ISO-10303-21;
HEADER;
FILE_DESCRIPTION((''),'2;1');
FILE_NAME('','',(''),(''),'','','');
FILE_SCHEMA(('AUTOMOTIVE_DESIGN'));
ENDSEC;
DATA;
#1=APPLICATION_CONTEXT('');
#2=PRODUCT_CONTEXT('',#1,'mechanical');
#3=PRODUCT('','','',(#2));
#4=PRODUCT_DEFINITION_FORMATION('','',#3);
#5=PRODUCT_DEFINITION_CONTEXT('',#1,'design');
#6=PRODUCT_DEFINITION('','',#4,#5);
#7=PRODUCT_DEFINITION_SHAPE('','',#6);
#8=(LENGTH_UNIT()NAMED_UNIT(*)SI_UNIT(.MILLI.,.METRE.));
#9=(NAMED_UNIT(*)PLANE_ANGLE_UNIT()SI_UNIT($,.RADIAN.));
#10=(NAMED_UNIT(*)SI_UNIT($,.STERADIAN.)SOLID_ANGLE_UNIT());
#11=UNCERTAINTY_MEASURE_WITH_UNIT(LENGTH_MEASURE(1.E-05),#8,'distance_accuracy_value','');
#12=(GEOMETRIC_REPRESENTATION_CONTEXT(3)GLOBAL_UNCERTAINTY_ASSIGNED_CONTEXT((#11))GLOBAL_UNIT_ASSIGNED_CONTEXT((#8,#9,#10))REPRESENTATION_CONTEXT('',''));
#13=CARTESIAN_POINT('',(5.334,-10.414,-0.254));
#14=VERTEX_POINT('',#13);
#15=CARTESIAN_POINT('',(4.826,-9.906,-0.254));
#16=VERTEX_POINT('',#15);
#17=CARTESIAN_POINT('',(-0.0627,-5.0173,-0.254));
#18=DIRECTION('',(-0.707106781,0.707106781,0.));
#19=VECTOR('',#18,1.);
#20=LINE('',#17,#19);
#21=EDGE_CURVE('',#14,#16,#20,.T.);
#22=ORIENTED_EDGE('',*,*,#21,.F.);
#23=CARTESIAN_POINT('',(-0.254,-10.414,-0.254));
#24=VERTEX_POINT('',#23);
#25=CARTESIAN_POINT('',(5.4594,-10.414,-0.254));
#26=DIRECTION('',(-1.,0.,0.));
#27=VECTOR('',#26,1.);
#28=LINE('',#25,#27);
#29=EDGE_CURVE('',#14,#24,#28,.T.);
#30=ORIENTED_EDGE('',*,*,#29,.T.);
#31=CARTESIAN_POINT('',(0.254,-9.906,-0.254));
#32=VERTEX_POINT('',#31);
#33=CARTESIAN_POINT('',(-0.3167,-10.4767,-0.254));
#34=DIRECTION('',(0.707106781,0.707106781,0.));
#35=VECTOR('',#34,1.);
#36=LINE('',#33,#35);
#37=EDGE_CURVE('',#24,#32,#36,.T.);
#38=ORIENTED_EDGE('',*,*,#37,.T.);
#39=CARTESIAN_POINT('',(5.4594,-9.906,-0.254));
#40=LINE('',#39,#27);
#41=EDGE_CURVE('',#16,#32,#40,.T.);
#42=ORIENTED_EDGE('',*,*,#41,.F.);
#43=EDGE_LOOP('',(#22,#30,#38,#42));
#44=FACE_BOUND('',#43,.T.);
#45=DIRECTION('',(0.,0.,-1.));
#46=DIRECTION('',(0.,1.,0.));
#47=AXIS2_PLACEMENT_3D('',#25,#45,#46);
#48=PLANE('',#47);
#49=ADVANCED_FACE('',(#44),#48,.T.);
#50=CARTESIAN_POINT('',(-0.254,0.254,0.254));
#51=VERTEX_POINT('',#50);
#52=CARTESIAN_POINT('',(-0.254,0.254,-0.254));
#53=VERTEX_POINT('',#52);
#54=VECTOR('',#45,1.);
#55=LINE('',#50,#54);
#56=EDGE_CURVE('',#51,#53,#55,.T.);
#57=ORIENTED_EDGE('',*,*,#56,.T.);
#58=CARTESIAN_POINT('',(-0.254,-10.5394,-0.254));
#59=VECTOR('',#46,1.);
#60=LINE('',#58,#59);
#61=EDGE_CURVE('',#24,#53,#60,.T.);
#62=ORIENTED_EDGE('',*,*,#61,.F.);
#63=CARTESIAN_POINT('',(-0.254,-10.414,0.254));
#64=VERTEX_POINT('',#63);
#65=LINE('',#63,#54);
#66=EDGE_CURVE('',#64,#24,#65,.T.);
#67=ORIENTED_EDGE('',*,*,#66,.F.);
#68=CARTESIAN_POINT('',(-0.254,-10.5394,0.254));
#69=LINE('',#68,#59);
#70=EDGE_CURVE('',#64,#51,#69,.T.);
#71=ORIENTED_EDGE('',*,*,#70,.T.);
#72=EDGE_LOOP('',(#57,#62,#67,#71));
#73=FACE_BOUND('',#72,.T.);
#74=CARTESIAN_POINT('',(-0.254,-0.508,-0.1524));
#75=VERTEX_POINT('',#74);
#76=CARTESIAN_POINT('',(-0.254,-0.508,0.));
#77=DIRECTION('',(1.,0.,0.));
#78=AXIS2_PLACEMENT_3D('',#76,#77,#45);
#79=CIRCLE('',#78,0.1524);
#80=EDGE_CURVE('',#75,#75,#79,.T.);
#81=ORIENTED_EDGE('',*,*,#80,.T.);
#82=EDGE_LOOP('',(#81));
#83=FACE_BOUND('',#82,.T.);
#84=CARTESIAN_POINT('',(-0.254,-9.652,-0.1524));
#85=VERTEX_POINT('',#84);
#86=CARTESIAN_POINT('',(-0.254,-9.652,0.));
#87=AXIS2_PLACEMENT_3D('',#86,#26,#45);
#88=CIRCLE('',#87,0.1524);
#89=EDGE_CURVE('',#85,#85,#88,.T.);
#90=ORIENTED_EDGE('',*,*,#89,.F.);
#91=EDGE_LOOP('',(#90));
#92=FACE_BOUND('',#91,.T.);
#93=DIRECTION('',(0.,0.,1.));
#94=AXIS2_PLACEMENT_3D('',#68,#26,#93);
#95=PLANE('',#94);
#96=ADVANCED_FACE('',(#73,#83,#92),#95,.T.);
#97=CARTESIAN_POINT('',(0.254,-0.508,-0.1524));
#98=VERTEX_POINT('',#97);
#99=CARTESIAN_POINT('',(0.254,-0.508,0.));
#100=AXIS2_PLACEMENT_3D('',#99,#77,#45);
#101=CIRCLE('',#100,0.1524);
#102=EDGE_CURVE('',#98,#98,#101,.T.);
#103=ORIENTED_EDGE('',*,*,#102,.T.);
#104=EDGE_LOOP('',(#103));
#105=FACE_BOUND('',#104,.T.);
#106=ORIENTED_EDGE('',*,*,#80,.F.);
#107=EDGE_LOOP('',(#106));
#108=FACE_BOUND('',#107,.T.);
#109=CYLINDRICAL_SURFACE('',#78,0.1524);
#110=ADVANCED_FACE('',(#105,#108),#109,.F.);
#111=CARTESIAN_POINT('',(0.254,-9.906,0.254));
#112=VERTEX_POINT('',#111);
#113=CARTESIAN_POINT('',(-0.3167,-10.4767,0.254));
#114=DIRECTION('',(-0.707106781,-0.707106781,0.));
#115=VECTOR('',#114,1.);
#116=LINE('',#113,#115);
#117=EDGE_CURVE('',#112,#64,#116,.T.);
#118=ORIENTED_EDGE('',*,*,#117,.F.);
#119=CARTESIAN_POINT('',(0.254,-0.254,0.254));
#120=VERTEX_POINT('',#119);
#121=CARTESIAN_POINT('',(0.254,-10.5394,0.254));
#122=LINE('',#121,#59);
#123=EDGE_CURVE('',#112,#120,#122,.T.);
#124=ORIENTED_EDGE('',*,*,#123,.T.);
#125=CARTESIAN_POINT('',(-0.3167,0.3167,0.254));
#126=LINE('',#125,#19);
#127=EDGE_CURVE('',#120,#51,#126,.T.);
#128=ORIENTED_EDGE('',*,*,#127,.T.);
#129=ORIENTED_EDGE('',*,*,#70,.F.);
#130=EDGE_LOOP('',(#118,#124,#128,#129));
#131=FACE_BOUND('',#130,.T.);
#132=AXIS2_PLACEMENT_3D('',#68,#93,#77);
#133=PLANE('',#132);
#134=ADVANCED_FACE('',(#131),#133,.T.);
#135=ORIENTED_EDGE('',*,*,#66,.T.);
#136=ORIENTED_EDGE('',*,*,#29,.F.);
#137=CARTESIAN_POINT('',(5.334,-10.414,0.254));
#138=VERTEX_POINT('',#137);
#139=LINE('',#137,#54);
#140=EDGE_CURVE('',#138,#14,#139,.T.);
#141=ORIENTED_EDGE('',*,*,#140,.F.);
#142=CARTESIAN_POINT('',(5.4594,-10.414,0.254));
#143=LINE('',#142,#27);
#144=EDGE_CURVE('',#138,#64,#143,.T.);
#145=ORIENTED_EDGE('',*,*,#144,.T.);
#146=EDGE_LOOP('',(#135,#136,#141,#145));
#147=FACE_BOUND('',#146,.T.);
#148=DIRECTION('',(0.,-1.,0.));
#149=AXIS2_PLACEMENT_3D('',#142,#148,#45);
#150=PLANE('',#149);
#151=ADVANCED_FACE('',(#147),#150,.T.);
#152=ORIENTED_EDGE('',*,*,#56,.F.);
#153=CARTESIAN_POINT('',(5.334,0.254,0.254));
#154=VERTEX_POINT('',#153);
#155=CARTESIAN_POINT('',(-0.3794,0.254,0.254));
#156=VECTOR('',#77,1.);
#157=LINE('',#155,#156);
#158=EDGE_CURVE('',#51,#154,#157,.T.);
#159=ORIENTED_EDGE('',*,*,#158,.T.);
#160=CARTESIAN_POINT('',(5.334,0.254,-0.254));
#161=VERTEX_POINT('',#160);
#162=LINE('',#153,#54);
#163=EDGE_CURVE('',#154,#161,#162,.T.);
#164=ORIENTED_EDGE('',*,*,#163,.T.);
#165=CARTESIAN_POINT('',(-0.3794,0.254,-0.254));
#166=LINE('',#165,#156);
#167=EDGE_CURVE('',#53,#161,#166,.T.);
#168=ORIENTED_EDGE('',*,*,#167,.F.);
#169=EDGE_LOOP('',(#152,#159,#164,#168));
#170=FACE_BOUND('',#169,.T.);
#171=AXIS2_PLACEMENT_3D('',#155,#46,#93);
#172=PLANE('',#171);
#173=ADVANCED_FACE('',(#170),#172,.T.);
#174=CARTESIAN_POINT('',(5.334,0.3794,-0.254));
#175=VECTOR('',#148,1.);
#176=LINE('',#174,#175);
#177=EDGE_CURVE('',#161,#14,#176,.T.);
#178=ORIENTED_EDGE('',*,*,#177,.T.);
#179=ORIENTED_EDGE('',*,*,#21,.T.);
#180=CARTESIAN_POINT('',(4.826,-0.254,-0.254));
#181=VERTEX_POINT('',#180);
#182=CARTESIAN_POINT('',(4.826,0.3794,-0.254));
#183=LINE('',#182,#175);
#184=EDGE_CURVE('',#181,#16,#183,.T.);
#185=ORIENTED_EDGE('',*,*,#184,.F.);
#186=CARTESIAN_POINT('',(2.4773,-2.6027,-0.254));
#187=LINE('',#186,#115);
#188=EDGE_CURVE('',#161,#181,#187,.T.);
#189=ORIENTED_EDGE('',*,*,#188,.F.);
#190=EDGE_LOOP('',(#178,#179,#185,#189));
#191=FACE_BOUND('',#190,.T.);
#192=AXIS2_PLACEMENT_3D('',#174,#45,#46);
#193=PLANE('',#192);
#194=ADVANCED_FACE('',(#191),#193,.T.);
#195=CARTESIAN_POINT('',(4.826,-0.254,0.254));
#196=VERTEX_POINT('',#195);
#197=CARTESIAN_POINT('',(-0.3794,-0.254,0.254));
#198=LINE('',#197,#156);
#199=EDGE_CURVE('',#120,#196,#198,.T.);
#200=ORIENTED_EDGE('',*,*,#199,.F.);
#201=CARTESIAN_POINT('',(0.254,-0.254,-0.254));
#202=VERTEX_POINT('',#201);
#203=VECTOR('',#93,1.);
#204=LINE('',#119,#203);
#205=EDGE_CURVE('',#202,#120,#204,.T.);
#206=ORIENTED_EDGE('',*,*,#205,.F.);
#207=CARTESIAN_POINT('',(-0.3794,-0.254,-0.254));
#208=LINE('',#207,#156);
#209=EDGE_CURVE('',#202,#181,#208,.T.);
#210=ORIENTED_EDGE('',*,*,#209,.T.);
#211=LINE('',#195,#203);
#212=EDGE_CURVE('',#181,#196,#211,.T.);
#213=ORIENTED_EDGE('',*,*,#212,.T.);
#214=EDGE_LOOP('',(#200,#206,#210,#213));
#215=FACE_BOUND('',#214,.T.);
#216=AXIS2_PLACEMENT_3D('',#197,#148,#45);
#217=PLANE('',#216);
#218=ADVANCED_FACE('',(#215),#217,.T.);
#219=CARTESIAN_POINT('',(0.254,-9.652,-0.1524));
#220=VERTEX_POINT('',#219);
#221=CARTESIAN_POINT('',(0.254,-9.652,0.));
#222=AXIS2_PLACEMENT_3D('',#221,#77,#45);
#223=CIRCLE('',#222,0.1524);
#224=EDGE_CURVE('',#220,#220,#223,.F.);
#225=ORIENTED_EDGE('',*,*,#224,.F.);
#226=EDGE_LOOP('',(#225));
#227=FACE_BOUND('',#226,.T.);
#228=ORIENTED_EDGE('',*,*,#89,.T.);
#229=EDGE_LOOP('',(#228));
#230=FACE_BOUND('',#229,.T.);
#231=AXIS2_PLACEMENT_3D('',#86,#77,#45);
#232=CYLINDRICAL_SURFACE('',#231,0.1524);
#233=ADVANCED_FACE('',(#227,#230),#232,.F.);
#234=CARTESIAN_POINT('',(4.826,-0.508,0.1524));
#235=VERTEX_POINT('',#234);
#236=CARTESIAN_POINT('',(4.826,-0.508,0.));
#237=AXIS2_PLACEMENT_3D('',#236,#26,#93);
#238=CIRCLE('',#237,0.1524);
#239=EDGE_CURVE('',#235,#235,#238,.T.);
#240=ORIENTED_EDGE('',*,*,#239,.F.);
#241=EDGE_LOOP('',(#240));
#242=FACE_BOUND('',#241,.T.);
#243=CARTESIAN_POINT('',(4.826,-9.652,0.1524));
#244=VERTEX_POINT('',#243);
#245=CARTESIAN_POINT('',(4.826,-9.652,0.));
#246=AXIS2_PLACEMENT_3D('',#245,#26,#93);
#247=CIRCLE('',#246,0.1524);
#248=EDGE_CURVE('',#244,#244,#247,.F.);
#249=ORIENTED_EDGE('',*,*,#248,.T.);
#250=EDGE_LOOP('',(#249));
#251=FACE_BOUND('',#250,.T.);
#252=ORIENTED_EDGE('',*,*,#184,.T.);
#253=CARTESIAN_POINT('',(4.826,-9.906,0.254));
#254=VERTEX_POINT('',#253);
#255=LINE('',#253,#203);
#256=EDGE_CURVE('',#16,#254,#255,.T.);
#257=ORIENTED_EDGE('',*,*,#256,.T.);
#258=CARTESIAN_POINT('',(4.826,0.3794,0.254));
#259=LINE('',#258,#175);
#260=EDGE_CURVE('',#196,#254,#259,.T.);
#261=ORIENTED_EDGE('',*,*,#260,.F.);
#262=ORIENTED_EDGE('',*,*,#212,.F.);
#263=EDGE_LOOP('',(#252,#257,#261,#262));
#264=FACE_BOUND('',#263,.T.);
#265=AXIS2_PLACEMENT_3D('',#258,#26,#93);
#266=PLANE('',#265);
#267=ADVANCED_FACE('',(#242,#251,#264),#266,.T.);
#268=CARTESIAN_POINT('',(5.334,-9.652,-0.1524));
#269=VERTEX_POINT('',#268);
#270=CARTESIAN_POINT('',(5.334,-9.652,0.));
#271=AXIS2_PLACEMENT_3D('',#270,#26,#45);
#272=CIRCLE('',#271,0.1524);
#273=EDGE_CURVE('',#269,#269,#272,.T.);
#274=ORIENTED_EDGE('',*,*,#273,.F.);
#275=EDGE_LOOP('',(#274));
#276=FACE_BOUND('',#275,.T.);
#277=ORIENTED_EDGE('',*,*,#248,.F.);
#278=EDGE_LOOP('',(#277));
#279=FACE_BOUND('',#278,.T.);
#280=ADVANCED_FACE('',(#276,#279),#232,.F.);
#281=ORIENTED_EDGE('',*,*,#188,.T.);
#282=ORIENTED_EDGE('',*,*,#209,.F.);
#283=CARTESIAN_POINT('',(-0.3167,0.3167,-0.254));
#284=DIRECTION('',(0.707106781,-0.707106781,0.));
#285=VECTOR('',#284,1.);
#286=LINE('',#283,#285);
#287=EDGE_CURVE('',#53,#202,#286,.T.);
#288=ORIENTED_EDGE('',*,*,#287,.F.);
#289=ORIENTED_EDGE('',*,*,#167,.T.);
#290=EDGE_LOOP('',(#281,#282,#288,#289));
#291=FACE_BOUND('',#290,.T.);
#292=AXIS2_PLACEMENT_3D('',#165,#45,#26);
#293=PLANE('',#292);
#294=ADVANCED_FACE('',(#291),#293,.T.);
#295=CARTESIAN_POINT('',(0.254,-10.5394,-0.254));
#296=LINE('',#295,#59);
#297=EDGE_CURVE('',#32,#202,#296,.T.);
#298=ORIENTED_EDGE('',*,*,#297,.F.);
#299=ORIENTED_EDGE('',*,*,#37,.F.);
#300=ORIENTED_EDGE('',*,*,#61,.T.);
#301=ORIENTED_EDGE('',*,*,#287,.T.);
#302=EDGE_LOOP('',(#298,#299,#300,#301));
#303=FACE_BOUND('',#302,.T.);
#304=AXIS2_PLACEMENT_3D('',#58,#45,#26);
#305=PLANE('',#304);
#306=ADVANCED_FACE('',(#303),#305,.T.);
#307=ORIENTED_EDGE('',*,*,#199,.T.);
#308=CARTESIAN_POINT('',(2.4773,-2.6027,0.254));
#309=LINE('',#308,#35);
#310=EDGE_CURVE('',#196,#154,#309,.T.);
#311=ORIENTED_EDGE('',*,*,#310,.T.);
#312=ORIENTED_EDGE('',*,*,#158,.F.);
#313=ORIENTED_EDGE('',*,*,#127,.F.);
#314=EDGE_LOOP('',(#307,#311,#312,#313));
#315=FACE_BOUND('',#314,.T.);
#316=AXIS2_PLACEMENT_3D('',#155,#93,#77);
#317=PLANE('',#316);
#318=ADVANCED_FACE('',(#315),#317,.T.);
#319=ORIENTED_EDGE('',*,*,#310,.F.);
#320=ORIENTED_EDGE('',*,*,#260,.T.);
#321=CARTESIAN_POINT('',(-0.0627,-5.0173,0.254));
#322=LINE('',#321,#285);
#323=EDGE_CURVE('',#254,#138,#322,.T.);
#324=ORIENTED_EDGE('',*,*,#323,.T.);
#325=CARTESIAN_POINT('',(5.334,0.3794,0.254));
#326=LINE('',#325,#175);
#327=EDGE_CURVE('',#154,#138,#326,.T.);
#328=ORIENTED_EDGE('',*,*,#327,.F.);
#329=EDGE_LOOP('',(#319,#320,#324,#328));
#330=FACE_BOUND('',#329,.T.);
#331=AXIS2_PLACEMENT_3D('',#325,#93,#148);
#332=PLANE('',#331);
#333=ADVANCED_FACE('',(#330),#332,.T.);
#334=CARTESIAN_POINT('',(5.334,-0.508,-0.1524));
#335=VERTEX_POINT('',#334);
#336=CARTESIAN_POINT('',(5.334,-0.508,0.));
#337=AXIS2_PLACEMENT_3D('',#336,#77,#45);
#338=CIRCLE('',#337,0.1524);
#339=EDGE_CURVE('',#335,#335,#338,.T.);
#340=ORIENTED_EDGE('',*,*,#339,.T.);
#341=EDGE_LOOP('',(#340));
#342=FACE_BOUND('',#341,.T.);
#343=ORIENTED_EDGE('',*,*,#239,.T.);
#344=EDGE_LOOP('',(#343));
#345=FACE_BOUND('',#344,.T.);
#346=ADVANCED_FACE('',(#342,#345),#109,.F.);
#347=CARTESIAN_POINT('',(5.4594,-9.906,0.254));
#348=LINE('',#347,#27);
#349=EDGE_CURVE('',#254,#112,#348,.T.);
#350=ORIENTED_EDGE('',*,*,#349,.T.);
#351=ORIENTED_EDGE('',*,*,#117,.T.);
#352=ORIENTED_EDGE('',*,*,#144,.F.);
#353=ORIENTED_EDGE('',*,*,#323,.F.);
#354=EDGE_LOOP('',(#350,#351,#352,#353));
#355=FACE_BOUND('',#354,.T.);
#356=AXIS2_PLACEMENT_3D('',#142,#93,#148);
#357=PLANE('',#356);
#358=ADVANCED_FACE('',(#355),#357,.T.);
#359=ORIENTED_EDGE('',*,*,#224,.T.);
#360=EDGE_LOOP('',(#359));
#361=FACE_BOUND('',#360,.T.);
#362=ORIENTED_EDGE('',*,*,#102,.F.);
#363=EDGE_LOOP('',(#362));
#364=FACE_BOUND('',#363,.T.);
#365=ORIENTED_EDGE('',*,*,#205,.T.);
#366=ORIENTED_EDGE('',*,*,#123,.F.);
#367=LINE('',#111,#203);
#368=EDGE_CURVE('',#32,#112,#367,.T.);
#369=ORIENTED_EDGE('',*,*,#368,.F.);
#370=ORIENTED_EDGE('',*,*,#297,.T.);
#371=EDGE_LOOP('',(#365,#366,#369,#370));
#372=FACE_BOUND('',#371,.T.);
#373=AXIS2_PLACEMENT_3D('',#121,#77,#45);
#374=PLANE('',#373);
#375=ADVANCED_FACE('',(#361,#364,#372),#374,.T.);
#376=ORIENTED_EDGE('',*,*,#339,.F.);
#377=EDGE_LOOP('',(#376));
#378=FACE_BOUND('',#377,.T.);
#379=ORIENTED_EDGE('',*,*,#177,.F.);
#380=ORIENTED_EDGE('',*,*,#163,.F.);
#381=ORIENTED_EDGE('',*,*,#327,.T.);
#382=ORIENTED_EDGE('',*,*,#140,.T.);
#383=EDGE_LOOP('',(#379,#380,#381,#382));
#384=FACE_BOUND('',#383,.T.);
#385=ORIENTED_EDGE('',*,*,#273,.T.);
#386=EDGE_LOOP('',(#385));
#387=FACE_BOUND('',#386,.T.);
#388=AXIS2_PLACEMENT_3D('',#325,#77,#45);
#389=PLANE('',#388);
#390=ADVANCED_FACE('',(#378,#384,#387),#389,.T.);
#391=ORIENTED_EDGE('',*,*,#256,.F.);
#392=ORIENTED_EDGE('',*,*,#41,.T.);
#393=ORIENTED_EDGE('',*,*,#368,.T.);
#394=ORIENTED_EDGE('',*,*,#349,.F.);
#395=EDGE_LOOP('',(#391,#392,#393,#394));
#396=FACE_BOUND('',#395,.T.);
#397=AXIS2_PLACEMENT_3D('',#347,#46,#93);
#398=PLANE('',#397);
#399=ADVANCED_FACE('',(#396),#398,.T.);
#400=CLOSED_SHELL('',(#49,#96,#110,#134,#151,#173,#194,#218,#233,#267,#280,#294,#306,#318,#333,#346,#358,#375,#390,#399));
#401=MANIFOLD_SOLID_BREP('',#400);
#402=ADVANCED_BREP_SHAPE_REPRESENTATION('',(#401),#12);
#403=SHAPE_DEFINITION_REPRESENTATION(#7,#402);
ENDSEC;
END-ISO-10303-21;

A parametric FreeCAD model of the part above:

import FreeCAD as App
import Part
import Sketcher
Q = App.Units.Quantity


def add_polygon(sketch, points):
    """Adds a closed chain of lines whose ends are joined by coincident constraints."""
    first, n = sketch.GeometryCount, len(points)
    for a, b in zip(points, points[1:] + points[:1]):
        sketch.addGeometry(Part.LineSegment(App.Vector(*a, 0), App.Vector(*b, 0)), False)
    for i in range(n):
        sketch.addConstraint(Sketcher.Constraint("Coincident", first + i, 2, first + (i + 1) % n, 1))

doc = App.newDocument("Part")
body = doc.addObject("PartDesign::Body", "Body")

# Sketch on YZ plane
sketch1 = body.newObject("Sketcher::SketchObject", "Sketch")
sketch1.AttachmentSupport = (doc.getObject("YZ_Plane"), [""])
sketch1.MapMode = "FlatFace"
add_polygon(sketch1, [(0.254, 0.254), (-0.254, 0.254), (-0.254, -0.254), (0.254, -0.254)])  # lines 0-3
sketch1.addConstraint(Sketcher.Constraint("Horizontal", 0))
sketch1.addConstraint(Sketcher.Constraint("Vertical", 1))
sketch1.addConstraint(Sketcher.Constraint("Horizontal", 2))
sketch1.addConstraint(Sketcher.Constraint("Vertical", 3))
sketch1.addConstraint(Sketcher.Constraint("Symmetric", 0, 2, 2, 2, -1, 1))
sketch1.addConstraint(Sketcher.Constraint("Equal", 2, 1))
sketch1.addConstraint(Sketcher.Constraint("DistanceX", 0, 2, 0, 1, Q("0.02 in")))

# Sketch on XY plane
sketch2 = body.newObject("Sketcher::SketchObject", "Sketch001")
sketch2.AttachmentSupport = (doc.getObject("XY_Plane"), [""])
sketch2.MapMode = "FlatFace"
add_polygon(sketch2, [(0, 0), (5.08, 0), (5.08, -10.16), (0, -10.16)])  # lines 0-3
sketch2.addConstraint(Sketcher.Constraint("Horizontal", 0))
sketch2.addConstraint(Sketcher.Constraint("Vertical", 1))
sketch2.addConstraint(Sketcher.Constraint("Horizontal", 2))
sketch2.addConstraint(Sketcher.Constraint("Vertical", 3))
sketch2.addConstraint(Sketcher.Constraint("Coincident", 3, 2, -1, 1))
sketch2.addConstraint(Sketcher.Constraint("DistanceX", 0, 1, 0, 2, Q("0.2 in")))
sketch2.addConstraint(Sketcher.Constraint("DistanceY", 1, 2, 1, 1, Q("0.4 in")))
doc.recompute()

additivepipe = body.newObject("PartDesign::AdditivePipe", "AdditivePipe")
additivepipe.Profile = sketch1
additivepipe.Spine = (sketch2, ["Edge1", "Edge2", "Edge3", "Edge4"])
additivepipe.Transition = "Right corner"

# Sketch on YZ plane
sketch3 = body.newObject("Sketcher::SketchObject", "Sketch002")
sketch3.AttachmentSupport = (doc.getObject("YZ_Plane"), [""])
sketch3.MapMode = "FlatFace"
sketch3.AttachmentOffset = App.Placement(App.Vector(0, 0, 0.21 * 25.4), App.Rotation())
sketch3.addGeometry(Part.Circle(App.Vector(-0.508, 0, 0), App.Vector(0, 0, 1), 0.1524), False)
sketch3.addConstraint(Sketcher.Constraint("PointOnObject", 0, 3, -1))
sketch3.addConstraint(Sketcher.Constraint("Diameter", 0, Q("0.012 in")))
sketch3.addConstraint(Sketcher.Constraint("DistanceX", 0, 3, -1, 1, Q("0.02 in")))
pocket1 = body.newObject("PartDesign::Pocket", "Pocket")
pocket1.Profile = sketch3
pocket1.Type = "ThroughAll"
doc.recompute()

datumplane = body.newObject("PartDesign::Plane", "DatumPlane")
datumplane.AttachmentSupport = (doc.getObject("XZ_Plane"), [""])
datumplane.MapMode = "FlatFace"
datumplane.AttachmentOffset = App.Placement(App.Vector(0, 0, 0.2 * 25.4), App.Rotation())
mirrored = body.newObject("PartDesign::Mirrored", "Mirrored")
mirrored.Originals = [pocket1]
mirrored.MirrorPlane = (datumplane, [""])
body.Tip = mirrored

doc.recompute()
